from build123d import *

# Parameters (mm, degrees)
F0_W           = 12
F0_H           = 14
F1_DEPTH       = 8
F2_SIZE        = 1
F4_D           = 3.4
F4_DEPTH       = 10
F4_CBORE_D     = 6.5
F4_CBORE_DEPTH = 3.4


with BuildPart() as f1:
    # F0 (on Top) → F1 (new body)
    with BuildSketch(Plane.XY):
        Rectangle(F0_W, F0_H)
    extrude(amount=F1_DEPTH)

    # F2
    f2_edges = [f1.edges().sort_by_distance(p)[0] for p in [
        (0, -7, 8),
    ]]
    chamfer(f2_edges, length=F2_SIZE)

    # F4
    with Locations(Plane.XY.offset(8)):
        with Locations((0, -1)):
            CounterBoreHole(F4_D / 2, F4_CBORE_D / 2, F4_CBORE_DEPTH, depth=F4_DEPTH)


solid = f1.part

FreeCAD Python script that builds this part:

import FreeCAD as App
import Part
import Sketcher
Q = App.Units.Quantity


def edges_at(feature, points):
    """Names of the edges that pass closest to the given points."""
    edges = feature.Shape.Edges
    near = lambda p: min(range(len(edges)), key=lambda i: edges[i].distToShape(Part.Vertex(*p))[0])
    return sorted({f"Edge{near(p) + 1}" for p in points})


def add_polygon(sketch, points):
    """Adds a closed chain of lines whose ends are joined by coincident constraints."""
    first, n = sketch.GeometryCount, len(points)
    for a, b in zip(points, points[1:] + points[:1]):
        sketch.addGeometry(Part.LineSegment(App.Vector(*a, 0), App.Vector(*b, 0)), False)
    for i in range(n):
        sketch.addConstraint(Sketcher.Constraint("Coincident", first + i, 2, first + (i + 1) % n, 1))

doc = App.newDocument("Part")
body = doc.addObject("PartDesign::Body", "Body")

# Sketch on XY plane
sketch1 = doc.addObject("Sketcher::SketchObject", "Sketch")
body.addObject(sketch1)
sketch1.AttachmentSupport = (doc.XY_Plane, [""])
sketch1.MapMode = "FlatFace"
add_polygon(sketch1, [(-6, 7), (-6, -7), (6, -7), (6, 7)])  # lines 0-3
sketch1.addConstraint(Sketcher.Constraint("Vertical", 0))
sketch1.addConstraint(Sketcher.Constraint("Horizontal", 1))
sketch1.addConstraint(Sketcher.Constraint("Vertical", 2))
sketch1.addConstraint(Sketcher.Constraint("Horizontal", 3))
sketch1.addConstraint(Sketcher.Constraint("Symmetric", 0, 2, 2, 2, -1, 1))
sketch1.addConstraint(Sketcher.Constraint("DistanceX", 1, 1, 1, 2, Q("12 mm")))
sketch1.addConstraint(Sketcher.Constraint("DistanceY", 0, 2, 0, 1, Q("14 mm")))
pad1 = doc.addObject("PartDesign::Pad", "Pad")
body.addObject(pad1)
pad1.Profile = sketch1
pad1.Length = 8
doc.recompute()

chamfer = doc.addObject("PartDesign::Chamfer", "Chamfer")
body.addObject(chamfer)
chamfer.Base = (pad1, edges_at(pad1, [(0, -7, 8)]))
chamfer.Size = 1

# Sketch on XY plane
sketch2 = doc.addObject("Sketcher::SketchObject", "Sketch001")
body.addObject(sketch2)
sketch2.AttachmentSupport = (doc.XY_Plane, [""])
sketch2.MapMode = "FlatFace"
sketch2.AttachmentOffset = App.Placement(App.Vector(0, 0, 8), App.Rotation())
sketch2.addGeometry(Part.Circle(App.Vector(0, -1, 0), App.Vector(0, 0, 1), 1.7), False)
sketch2.addConstraint(Sketcher.Constraint("PointOnObject", 0, 3, -2))
sketch2.addConstraint(Sketcher.Constraint("Diameter", 0, Q("3.4 mm")))
sketch2.addConstraint(Sketcher.Constraint("DistanceY", 0, 3, -1, 1, Q("1 mm")))
doc.recompute()
hole = doc.addObject("PartDesign::Hole", "Hole")
body.addObject(hole)
hole.Profile = sketch2
hole.ThreadType = "None"
hole.Diameter = 3.4
hole.DepthType = "Dimension"
hole.Depth = 10
hole.DrillPoint = "Flat"
hole.HoleCutType = "Counterbore"
hole.HoleCutDiameter = 6.5
hole.HoleCutDepth = 3.4

doc.recompute()
